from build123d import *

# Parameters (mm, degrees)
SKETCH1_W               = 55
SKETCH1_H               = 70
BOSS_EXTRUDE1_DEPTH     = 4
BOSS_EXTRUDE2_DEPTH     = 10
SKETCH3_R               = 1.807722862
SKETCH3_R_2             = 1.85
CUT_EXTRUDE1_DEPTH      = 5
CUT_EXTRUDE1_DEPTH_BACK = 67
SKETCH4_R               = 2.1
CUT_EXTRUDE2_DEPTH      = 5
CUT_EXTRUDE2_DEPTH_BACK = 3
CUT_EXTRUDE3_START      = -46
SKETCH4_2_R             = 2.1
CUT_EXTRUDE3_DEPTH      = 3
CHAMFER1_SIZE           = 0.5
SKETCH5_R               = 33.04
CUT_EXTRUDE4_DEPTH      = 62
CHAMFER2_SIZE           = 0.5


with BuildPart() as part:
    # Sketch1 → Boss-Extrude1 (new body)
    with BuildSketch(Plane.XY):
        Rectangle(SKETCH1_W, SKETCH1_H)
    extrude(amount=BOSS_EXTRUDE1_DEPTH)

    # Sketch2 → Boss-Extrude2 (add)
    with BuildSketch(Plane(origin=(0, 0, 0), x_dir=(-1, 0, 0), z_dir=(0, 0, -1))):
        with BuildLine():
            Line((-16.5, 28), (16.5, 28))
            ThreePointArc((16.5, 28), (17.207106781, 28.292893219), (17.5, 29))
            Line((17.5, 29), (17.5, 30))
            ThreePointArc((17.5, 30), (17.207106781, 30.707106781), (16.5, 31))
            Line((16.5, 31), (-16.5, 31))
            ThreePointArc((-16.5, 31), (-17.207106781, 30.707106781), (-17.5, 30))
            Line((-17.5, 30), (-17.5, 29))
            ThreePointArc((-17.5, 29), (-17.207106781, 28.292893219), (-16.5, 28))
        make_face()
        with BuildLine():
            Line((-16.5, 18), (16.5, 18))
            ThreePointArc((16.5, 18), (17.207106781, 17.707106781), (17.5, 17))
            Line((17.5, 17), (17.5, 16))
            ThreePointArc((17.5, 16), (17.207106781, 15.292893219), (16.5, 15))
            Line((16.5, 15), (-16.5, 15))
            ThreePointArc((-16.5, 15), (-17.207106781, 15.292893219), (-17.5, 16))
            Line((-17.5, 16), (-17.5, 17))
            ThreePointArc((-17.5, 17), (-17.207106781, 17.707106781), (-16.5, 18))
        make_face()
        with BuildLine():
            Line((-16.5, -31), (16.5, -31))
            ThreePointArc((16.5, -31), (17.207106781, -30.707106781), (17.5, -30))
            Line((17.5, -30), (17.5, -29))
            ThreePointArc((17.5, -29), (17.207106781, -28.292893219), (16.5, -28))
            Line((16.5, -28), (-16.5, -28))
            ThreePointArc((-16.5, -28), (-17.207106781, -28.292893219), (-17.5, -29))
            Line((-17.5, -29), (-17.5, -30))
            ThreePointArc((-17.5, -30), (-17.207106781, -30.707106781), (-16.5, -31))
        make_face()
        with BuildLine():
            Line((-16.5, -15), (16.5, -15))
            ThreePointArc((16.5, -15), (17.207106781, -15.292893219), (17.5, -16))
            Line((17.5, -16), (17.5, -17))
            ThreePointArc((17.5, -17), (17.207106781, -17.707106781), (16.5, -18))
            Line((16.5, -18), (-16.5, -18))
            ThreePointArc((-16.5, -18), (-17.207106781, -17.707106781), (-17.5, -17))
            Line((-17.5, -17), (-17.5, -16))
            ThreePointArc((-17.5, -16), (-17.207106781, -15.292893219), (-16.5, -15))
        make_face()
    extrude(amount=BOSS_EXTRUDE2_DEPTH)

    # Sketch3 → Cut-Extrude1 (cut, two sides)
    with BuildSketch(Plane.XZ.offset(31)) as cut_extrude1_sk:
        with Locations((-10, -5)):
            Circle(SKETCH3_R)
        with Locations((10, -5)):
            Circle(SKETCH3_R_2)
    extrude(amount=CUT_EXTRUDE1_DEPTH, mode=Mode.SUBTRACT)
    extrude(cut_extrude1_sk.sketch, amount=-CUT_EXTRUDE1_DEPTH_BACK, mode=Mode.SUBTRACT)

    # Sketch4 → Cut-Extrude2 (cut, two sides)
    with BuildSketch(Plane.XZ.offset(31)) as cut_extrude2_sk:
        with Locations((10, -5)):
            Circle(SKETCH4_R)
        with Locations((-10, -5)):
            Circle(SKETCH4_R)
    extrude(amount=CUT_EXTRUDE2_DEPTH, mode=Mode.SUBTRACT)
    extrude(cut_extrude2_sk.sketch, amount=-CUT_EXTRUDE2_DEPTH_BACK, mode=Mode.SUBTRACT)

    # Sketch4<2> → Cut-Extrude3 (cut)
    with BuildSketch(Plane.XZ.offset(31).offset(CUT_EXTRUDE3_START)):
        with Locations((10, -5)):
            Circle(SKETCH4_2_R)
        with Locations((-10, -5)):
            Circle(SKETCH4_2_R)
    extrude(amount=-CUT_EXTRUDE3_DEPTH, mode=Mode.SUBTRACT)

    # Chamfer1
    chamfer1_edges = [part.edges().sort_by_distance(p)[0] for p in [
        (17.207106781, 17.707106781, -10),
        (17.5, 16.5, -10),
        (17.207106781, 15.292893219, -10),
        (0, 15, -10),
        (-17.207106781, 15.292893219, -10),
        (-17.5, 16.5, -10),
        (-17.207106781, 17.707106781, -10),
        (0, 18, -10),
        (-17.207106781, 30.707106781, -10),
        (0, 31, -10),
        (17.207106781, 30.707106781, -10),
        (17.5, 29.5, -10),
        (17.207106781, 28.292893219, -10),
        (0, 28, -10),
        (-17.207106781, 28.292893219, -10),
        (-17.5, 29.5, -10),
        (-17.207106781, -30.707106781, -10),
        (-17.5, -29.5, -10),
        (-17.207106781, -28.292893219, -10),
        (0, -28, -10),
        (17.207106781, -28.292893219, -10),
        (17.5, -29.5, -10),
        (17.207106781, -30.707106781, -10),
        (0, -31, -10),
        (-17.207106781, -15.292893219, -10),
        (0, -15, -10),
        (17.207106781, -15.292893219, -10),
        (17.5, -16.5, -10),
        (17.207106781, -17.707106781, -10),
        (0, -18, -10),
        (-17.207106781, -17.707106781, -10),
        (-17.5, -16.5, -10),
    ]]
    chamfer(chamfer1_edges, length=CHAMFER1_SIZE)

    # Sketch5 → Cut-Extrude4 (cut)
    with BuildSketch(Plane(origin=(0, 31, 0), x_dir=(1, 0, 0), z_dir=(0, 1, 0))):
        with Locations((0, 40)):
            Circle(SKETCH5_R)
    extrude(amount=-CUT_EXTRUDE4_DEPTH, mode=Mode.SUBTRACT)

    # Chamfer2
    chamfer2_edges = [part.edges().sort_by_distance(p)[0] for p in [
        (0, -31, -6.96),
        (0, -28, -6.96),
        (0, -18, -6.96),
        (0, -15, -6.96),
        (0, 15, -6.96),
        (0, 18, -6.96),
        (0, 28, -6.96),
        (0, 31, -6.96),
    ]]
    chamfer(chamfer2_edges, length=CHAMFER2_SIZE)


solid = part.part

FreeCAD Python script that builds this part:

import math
import FreeCAD as App
import Part
import Sketcher
from FreeCAD import Vector
Q = App.Units.Quantity


def edges_at(feature, points):
    """Names of the edges that pass closest to the given points."""
    edges = feature.Shape.Edges
    near = lambda p: min(range(len(edges)), key=lambda i: edges[i].distToShape(Part.Vertex(*p))[0])
    return sorted({f"Edge{near(p) + 1}" for p in points})

doc = App.newDocument("Part")
body = doc.addObject("PartDesign::Body", "Body")

# Sketch on XY plane
sketch1 = doc.addObject("Sketcher::SketchObject", "Sketch")
body.addObject(sketch1)
sketch1.AttachmentSupport = (doc.XY_Plane, [""])
sketch1.MapMode = "FlatFace"
sketch1.addGeometry([
    Part.LineSegment(Vector(-28, 35, 0), Vector(-28, -35, 0)),
    Part.LineSegment(Vector(-28, -35, 0), Vector(28, -35, 0)),
    Part.LineSegment(Vector(28, -35, 0), Vector(28, 35, 0)),
    Part.LineSegment(Vector(28, 35, 0), Vector(-28, 35, 0)),
], False)
sketch1.addConstraint([
    Sketcher.Constraint("Coincident", 0, 2, 1, 1),
    Sketcher.Constraint("Coincident", 1, 2, 2, 1),
    Sketcher.Constraint("Coincident", 2, 2, 3, 1),
    Sketcher.Constraint("Coincident", 3, 2, 0, 1),
    Sketcher.Constraint("Vertical", 0),
    Sketcher.Constraint("Horizontal", 1),
    Sketcher.Constraint("Vertical", 2),
    Sketcher.Constraint("Horizontal", 3),
    Sketcher.Constraint("Symmetric", 0, 2, 2, 2, -1, 1),
    Sketcher.Constraint("DistanceX", 1, 1, 1, 2, Q("55 mm")),
    Sketcher.Constraint("DistanceY", 0, 2, 0, 1, Q("70 mm")),
])
pad1 = doc.addObject("PartDesign::Pad", "Pad")
body.addObject(pad1)
pad1.Profile = sketch1
pad1.Length = 4

# Sketch on XY plane
sketch2 = doc.addObject("Sketcher::SketchObject", "Sketch001")
body.addObject(sketch2)
sketch2.AttachmentSupport = (doc.XY_Plane, [""])
sketch2.MapMode = "FlatFace"
sketch2.addGeometry([
    Part.LineSegment(Vector(16.5, 28, 0), Vector(-16.5, 28, 0)),  # 0
    Part.ArcOfCircle(Part.Circle(Vector(-16.5, 29, 0), Vector(0, 0, 1), 1), math.radians(-180), math.radians(-90)),  # 1
    Part.LineSegment(Vector(-17.5, 29, 0), Vector(-17.5, 30, 0)),  # 2
    Part.ArcOfCircle(Part.Circle(Vector(-16.5, 30, 0), Vector(0, 0, 1), 1), math.radians(90), math.radians(180)),  # 3
    Part.LineSegment(Vector(-16.5, 31, 0), Vector(16.5, 31, 0)),  # 4
    Part.ArcOfCircle(Part.Circle(Vector(16.5, 30, 0), Vector(0, 0, 1), 1), math.radians(0), math.radians(90)),  # 5
    Part.LineSegment(Vector(17.5, 30, 0), Vector(17.5, 29, 0)),  # 6
    Part.ArcOfCircle(Part.Circle(Vector(16.5, 29, 0), Vector(0, 0, 1), 1), math.radians(-90), math.radians(0)),  # 7
    Part.LineSegment(Vector(-16.5, 18, 0), Vector(16.5, 18, 0)),  # 8
    Part.ArcOfCircle(Part.Circle(Vector(16.5, 17, 0), Vector(0, 0, 1), 1), math.radians(0), math.radians(90)),  # 9
    Part.LineSegment(Vector(17.5, 17, 0), Vector(17.5, 16, 0)),  # 10
    Part.ArcOfCircle(Part.Circle(Vector(16.5, 16, 0), Vector(0, 0, 1), 1), math.radians(-90), math.radians(0)),  # 11
    Part.LineSegment(Vector(16.5, 15, 0), Vector(-16.5, 15, 0)),  # 12
    Part.ArcOfCircle(Part.Circle(Vector(-16.5, 16, 0), Vector(0, 0, 1), 1), math.radians(-180), math.radians(-90)),  # 13
    Part.LineSegment(Vector(-17.5, 16, 0), Vector(-17.5, 17, 0)),  # 14
    Part.ArcOfCircle(Part.Circle(Vector(-16.5, 17, 0), Vector(0, 0, 1), 1), math.radians(90), math.radians(180)),  # 15
    Part.LineSegment(Vector(16.5, -31, 0), Vector(-16.5, -31, 0)),  # 16
    Part.ArcOfCircle(Part.Circle(Vector(-16.5, -30, 0), Vector(0, 0, 1), 1), math.radians(-180), math.radians(-90)),  # 17
    Part.LineSegment(Vector(-17.5, -30, 0), Vector(-17.5, -29, 0)),  # 18
    Part.ArcOfCircle(Part.Circle(Vector(-16.5, -29, 0), Vector(0, 0, 1), 1), math.radians(90), math.radians(180)),  # 19
    Part.LineSegment(Vector(-16.5, -28, 0), Vector(16.5, -28, 0)),  # 20
    Part.ArcOfCircle(Part.Circle(Vector(16.5, -29, 0), Vector(0, 0, 1), 1), math.radians(0), math.radians(90)),  # 21
    Part.LineSegment(Vector(17.5, -29, 0), Vector(17.5, -30, 0)),  # 22
    Part.ArcOfCircle(Part.Circle(Vector(16.5, -30, 0), Vector(0, 0, 1), 1), math.radians(-90), math.radians(0)),  # 23
    Part.LineSegment(Vector(-16.5, -15, 0), Vector(16.5, -15, 0)),  # 24
    Part.ArcOfCircle(Part.Circle(Vector(16.5, -16, 0), Vector(0, 0, 1), 1), math.radians(0), math.radians(90)),  # 25
    Part.LineSegment(Vector(17.5, -16, 0), Vector(17.5, -17, 0)),  # 26
    Part.ArcOfCircle(Part.Circle(Vector(16.5, -17, 0), Vector(0, 0, 1), 1), math.radians(-90), math.radians(0)),  # 27
    Part.LineSegment(Vector(16.5, -18, 0), Vector(-16.5, -18, 0)),  # 28
    Part.ArcOfCircle(Part.Circle(Vector(-16.5, -17, 0), Vector(0, 0, 1), 1), math.radians(-180), math.radians(-90)),  # 29
    Part.LineSegment(Vector(-17.5, -17, 0), Vector(-17.5, -16, 0)),  # 30
    Part.ArcOfCircle(Part.Circle(Vector(-16.5, -16, 0), Vector(0, 0, 1), 1), math.radians(90), math.radians(180)),  # 31
], False)
sketch2.addConstraint([
    Sketcher.Constraint("Tangent", 0, 2, 1, 2),
    Sketcher.Constraint("Tangent", 1, 1, 2, 1),
    Sketcher.Constraint("Tangent", 2, 2, 3, 2),
    Sketcher.Constraint("Tangent", 3, 1, 4, 1),
    Sketcher.Constraint("Tangent", 4, 2, 5, 2),
    Sketcher.Constraint("Tangent", 5, 1, 6, 1),
    Sketcher.Constraint("Tangent", 6, 2, 7, 2),
    Sketcher.Constraint("Tangent", 7, 1, 0, 1),
    Sketcher.Constraint("Tangent", 8, 2, 9, 2),
    Sketcher.Constraint("Tangent", 9, 1, 10, 1),
    Sketcher.Constraint("Tangent", 10, 2, 11, 2),
    Sketcher.Constraint("Tangent", 11, 1, 12, 1),
    Sketcher.Constraint("Tangent", 12, 2, 13, 2),
    Sketcher.Constraint("Tangent", 13, 1, 14, 1),
    Sketcher.Constraint("Tangent", 14, 2, 15, 2),
    Sketcher.Constraint("Tangent", 15, 1, 8, 1),
    Sketcher.Constraint("Tangent", 16, 2, 17, 2),
    Sketcher.Constraint("Tangent", 17, 1, 18, 1),
    Sketcher.Constraint("Tangent", 18, 2, 19, 2),
    Sketcher.Constraint("Tangent", 19, 1, 20, 1),
    Sketcher.Constraint("Tangent", 20, 2, 21, 2),
    Sketcher.Constraint("Tangent", 21, 1, 22, 1),
    Sketcher.Constraint("Tangent", 22, 2, 23, 2),
    Sketcher.Constraint("Tangent", 23, 1, 16, 1),
    Sketcher.Constraint("Tangent", 24, 2, 25, 2),
    Sketcher.Constraint("Tangent", 25, 1, 26, 1),
    Sketcher.Constraint("Tangent", 26, 2, 27, 2),
    Sketcher.Constraint("Tangent", 27, 1, 28, 1),
    Sketcher.Constraint("Tangent", 28, 2, 29, 2),
    Sketcher.Constraint("Tangent", 29, 1, 30, 1),
    Sketcher.Constraint("Tangent", 30, 2, 31, 2),
    Sketcher.Constraint("Tangent", 31, 1, 24, 1),
    Sketcher.Constraint("Horizontal", 0),
    Sketcher.Constraint("Vertical", 2),
    Sketcher.Constraint("Horizontal", 4),
    Sketcher.Constraint("Vertical", 6),
    Sketcher.Constraint("Horizontal", 8),
    Sketcher.Constraint("Vertical", 10),
    Sketcher.Constraint("Horizontal", 12),
    Sketcher.Constraint("Vertical", 14),
    Sketcher.Constraint("Horizontal", 16),
    Sketcher.Constraint("Vertical", 18),
    Sketcher.Constraint("Horizontal", 20),
    Sketcher.Constraint("Vertical", 22),
    Sketcher.Constraint("Horizontal", 24),
    Sketcher.Constraint("Vertical", 26),
    Sketcher.Constraint("Horizontal", 28),
    Sketcher.Constraint("Vertical", 30),
    Sketcher.Constraint("Equal", 1, 3),
    Sketcher.Constraint("Equal", 3, 5),
    Sketcher.Constraint("Equal", 5, 7),
    Sketcher.Constraint("Equal", 7, 9),
    Sketcher.Constraint("Equal", 9, 11),
    Sketcher.Constraint("Equal", 11, 13),
    Sketcher.Constraint("Equal", 13, 15),
    Sketcher.Constraint("Equal", 15, 17),
    Sketcher.Constraint("Equal", 17, 19),
    Sketcher.Constraint("Equal", 19, 21),
    Sketcher.Constraint("Equal", 21, 23),
    Sketcher.Constraint("Equal", 23, 25),
    Sketcher.Constraint("Equal", 25, 27),
    Sketcher.Constraint("Equal", 27, 29),
    Sketcher.Constraint("Equal", 29, 31),
    Sketcher.Constraint("Symmetric", 5, 3, 17, 3, -1, 1),
    Sketcher.Constraint("Symmetric", 1, 3, 21, 3, -1, 1),
    Sketcher.Constraint("Symmetric", 13, 3, 25, 3, -1, 1),
    Sketcher.Constraint("Symmetric", 9, 3, 29, 3, -1, 1),
    Sketcher.Constraint("Vertical", 7, 3, 9, 3),
    Sketcher.Constraint("Vertical", 3, 3, 13, 3),
    Sketcher.Constraint("Vertical", 15, 3, 17, 3),
    Sketcher.Constraint("Equal", 6, 10),
    Sketcher.Constraint("Radius", 1, Q("1 mm")),
    Sketcher.Constraint("DistanceX", 0, 2, 0, 1, Q("33 mm")),
    Sketcher.Constraint("DistanceY", 2, 1, 2, 2, Q("1 mm")),
    Sketcher.Constraint("DistanceY", -1, 1, 1, 3, Q("29 mm")),
    Sketcher.Constraint("DistanceY", -1, 1, 9, 3, Q("17 mm")),
])
pad2 = doc.addObject("PartDesign::Pad", "Pad001")
body.addObject(pad2)
pad2.Profile = sketch2
pad2.Length = 10
pad2.Reversed = True

# Sketch on XZ plane
sketch3 = doc.addObject("Sketcher::SketchObject", "Sketch002")
body.addObject(sketch3)
sketch3.AttachmentSupport = (doc.XZ_Plane, [""])
sketch3.MapMode = "FlatFace"
sketch3.AttachmentOffset = App.Placement(Vector(0, 0, 31), App.Rotation())
sketch3.addGeometry([
    Part.Circle(Vector(-10, -5, 0), Vector(0, 0, 1), 1.8),
    Part.Circle(Vector(10, -5, 0), Vector(0, 0, 1), 1.9),
], False)
sketch3.addConstraint([
    Sketcher.Constraint("Symmetric", 0, 3, 1, 3, -2),
    Sketcher.Constraint("Diameter", 1, Q("3.7 mm")),
    Sketcher.Constraint("DistanceX", 0, 3, -1, 1, Q("10 mm")),
    Sketcher.Constraint("DistanceY", 0, 3, -1, 1, Q("5 mm")),
    Sketcher.Constraint("Diameter", 0, Q("3.615446 mm")),
])
pocket1 = doc.addObject("PartDesign::Pocket", "Pocket")
body.addObject(pocket1)
pocket1.Profile = sketch3
pocket1.Type = "ThroughAll"
pocket1.Midplane = True

# Sketch on XZ plane
sketch4 = doc.addObject("Sketcher::SketchObject", "Sketch003")
body.addObject(sketch4)
sketch4.AttachmentSupport = (doc.XZ_Plane, [""])
sketch4.MapMode = "FlatFace"
sketch4.AttachmentOffset = App.Placement(Vector(0, 0, 31), App.Rotation())
sketch4.addGeometry([
    Part.Circle(Vector(10, -5, 0), Vector(0, 0, 1), 2.1),
    Part.Circle(Vector(-10, -5, 0), Vector(0, 0, 1), 2.1),
], False)
sketch4.addConstraint([
    Sketcher.Constraint("Equal", 0, 1),
    Sketcher.Constraint("Symmetric", 0, 3, 1, 3, -2),
    Sketcher.Constraint("Diameter", 0, Q("4.2 mm")),
    Sketcher.Constraint("DistanceX", -1, 1, 0, 3, Q("10 mm")),
    Sketcher.Constraint("DistanceY", 0, 3, -1, 1, Q("5 mm")),
])
pocket2 = doc.addObject("PartDesign::Pocket", "Pocket001")
body.addObject(pocket2)
pocket2.Profile = sketch4
pocket2.Type = "TwoLengths"
pocket2.Length = 5
pocket2.Length2 = 3
pocket2.Reversed = True

# Sketch on XZ plane
sketch5 = doc.addObject("Sketcher::SketchObject", "Sketch004")
body.addObject(sketch5)
sketch5.AttachmentSupport = (doc.XZ_Plane, [""])
sketch5.MapMode = "FlatFace"
sketch5.AttachmentOffset = App.Placement(Vector(0, 0, -15), App.Rotation())
sketch5.addGeometry([
    Part.Circle(Vector(10, -5, 0), Vector(0, 0, 1), 2.1),
    Part.Circle(Vector(-10, -5, 0), Vector(0, 0, 1), 2.1),
], False)
sketch5.addConstraint([
    Sketcher.Constraint("Equal", 0, 1),
    Sketcher.Constraint("Symmetric", 0, 3, 1, 3, -2),
    Sketcher.Constraint("Diameter", 0, Q("4.2 mm")),
    Sketcher.Constraint("DistanceX", -1, 1, 0, 3, Q("10 mm")),
    Sketcher.Constraint("DistanceY", 0, 3, -1, 1, Q("5 mm")),
])
pocket3 = doc.addObject("PartDesign::Pocket", "Pocket002")
body.addObject(pocket3)
pocket3.Profile = sketch5
pocket3.Length = 3
doc.recompute()

chamfer = doc.addObject("PartDesign::Chamfer", "Chamfer")
body.addObject(chamfer)
chamfer.Base = (pocket3, edges_at(pocket3, [
    (17.207, 17.707, -10),
    (17.5, 16.5, -10),
    (17.207, 15.293, -10),
    (0, 15, -10),
    (-17.207, 15.293, -10),
    (-17.5, 16.5, -10),
    (-17.207, 17.707, -10),
    (0, 18, -10),
    (-17.207, 30.707, -10),
    (0, 31, -10),
    (17.207, 30.707, -10),
    (17.5, 29.5, -10),
    (17.207, 28.293, -10),
    (0, 28, -10),
    (-17.207, 28.293, -10),
    (-17.5, 29.5, -10),
    (-17.207, -30.707, -10),
    (-17.5, -29.5, -10),
    (-17.207, -28.293, -10),
    (0, -28, -10),
    (17.207, -28.293, -10),
    (17.5, -29.5, -10),
    (17.207, -30.707, -10),
    (0, -31, -10),
    (-17.207, -15.293, -10),
    (0, -15, -10),
    (17.207, -15.293, -10),
    (17.5, -16.5, -10),
    (17.207, -17.707, -10),
    (0, -18, -10),
    (-17.207, -17.707, -10),
    (-17.5, -16.5, -10),
]))
chamfer.Size = 0.5

# Sketch on XZ plane
sketch6 = doc.addObject("Sketcher::SketchObject", "Sketch005")
body.addObject(sketch6)
sketch6.AttachmentSupport = (doc.XZ_Plane, [""])
sketch6.MapMode = "FlatFace"
sketch6.AttachmentOffset = App.Placement(Vector(0, 0, -31), App.Rotation())
sketch6.addGeometry(Part.Circle(Vector(0, -40, 0), Vector(0, 0, 1), 33), False)
sketch6.addConstraint([
    Sketcher.Constraint("PointOnObject", 0, 3, -2),
    Sketcher.Constraint("Diameter", 0, Q("66.08 mm")),
    Sketcher.Constraint("DistanceY", 0, 3, -1, 1, Q("40 mm")),
])
pocket4 = doc.addObject("PartDesign::Pocket", "Pocket003")
body.addObject(pocket4)
pocket4.Profile = sketch6
pocket4.Length = 62
pocket4.Reversed = True
doc.recompute()

chamfer2 = doc.addObject("PartDesign::Chamfer", "Chamfer001")
body.addObject(chamfer2)
chamfer2.Base = (pocket4, edges_at(pocket4, [
    (0, -31, -6.96),
    (0, -28, -6.96),
    (0, -18, -6.96),
    (0, -15, -6.96),
    (0, 15, -6.96),
    (0, 18, -6.96),
    (0, 28, -6.96),
    (0, 31, -6.96),
]))
chamfer2.Size = 0.5

doc.recompute()
